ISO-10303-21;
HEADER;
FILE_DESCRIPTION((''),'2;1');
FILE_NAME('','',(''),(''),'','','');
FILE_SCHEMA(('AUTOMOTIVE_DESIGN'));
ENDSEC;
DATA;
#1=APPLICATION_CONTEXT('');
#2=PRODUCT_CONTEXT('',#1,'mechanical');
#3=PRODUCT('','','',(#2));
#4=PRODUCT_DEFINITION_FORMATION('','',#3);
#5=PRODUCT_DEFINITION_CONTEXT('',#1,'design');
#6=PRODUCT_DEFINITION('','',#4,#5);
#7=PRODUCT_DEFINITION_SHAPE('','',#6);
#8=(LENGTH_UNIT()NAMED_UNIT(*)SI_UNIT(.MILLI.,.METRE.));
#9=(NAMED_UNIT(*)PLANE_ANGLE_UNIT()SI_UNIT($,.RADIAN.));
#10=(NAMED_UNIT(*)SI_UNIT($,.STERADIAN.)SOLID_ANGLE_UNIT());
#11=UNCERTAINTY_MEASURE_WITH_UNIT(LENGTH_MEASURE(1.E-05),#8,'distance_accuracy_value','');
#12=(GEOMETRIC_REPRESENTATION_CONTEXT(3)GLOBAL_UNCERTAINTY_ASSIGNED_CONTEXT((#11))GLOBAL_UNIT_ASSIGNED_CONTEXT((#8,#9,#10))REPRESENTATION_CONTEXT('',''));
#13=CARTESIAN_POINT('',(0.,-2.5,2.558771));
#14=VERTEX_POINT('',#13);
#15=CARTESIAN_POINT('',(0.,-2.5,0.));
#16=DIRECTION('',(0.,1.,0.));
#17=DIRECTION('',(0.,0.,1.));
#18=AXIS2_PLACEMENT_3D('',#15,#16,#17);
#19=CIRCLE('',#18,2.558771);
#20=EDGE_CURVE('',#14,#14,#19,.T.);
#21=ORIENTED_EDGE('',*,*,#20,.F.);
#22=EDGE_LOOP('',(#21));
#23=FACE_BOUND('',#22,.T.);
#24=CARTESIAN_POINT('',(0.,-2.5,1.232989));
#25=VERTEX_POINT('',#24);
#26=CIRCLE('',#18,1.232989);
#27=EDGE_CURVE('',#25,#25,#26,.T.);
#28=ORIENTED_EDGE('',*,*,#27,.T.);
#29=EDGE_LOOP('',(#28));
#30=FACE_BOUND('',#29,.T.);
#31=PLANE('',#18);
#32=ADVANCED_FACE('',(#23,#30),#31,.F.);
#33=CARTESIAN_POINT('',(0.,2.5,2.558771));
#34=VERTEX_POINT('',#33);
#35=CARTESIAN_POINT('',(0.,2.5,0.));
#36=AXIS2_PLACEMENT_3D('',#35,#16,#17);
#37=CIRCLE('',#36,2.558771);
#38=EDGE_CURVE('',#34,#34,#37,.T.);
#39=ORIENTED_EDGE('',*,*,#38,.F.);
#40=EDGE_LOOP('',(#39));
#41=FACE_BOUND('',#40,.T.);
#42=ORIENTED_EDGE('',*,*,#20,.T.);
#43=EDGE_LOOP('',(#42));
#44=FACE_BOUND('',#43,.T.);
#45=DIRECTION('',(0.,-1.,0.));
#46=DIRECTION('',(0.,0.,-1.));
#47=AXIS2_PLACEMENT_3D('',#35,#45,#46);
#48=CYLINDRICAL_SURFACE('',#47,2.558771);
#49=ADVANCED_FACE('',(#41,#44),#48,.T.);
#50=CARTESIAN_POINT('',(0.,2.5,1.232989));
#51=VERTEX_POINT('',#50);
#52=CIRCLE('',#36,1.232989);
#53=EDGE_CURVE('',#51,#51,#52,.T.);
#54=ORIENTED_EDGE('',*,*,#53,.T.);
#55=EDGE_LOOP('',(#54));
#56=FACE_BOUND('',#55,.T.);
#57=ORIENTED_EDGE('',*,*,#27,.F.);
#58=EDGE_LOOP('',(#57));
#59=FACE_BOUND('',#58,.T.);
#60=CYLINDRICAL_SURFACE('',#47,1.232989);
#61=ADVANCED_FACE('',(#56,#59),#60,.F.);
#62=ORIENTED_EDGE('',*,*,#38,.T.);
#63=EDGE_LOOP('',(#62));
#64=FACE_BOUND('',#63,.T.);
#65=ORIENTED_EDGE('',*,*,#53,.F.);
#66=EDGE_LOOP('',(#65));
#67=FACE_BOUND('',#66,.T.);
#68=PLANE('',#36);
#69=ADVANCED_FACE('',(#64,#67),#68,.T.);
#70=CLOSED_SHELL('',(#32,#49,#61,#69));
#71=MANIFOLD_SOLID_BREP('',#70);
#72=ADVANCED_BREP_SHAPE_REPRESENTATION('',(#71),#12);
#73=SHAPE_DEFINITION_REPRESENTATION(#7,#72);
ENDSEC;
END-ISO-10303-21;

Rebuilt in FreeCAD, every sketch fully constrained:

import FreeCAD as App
import Part
import Sketcher

doc = App.newDocument("Part")
body = doc.addObject("PartDesign::Body", "Body")

sketch1 = body.newObject("Sketcher::SketchObject", "Sketch")
sketch1.AttachmentSupport = (doc.getObject("XZ_Plane"), [""])
sketch1.MapMode = "FlatFace"
sketch1.addGeometry(Part.Circle(App.Vector(0, 0, 0), App.Vector(0, 0, 1), 2.6), False)
sketch1.addGeometry(Part.Circle(App.Vector(0, 0, 0), App.Vector(0, 0, 1), 1.2), False)
sketch1.addConstraint(Sketcher.Constraint("Coincident", 0, 3, -1, 1))
sketch1.addConstraint(Sketcher.Constraint("Coincident", 1, 3, -1, 1))
sketch1.addConstraint(Sketcher.Constraint("Diameter", 0, 5.117542))
sketch1.addConstraint(Sketcher.Constraint("Diameter", 1, 2.465979))
pad1 = body.newObject("PartDesign::Pad", "Pad")
pad1.Profile = sketch1
pad1.Length = 5
pad1.Midplane = True

doc.recompute()
